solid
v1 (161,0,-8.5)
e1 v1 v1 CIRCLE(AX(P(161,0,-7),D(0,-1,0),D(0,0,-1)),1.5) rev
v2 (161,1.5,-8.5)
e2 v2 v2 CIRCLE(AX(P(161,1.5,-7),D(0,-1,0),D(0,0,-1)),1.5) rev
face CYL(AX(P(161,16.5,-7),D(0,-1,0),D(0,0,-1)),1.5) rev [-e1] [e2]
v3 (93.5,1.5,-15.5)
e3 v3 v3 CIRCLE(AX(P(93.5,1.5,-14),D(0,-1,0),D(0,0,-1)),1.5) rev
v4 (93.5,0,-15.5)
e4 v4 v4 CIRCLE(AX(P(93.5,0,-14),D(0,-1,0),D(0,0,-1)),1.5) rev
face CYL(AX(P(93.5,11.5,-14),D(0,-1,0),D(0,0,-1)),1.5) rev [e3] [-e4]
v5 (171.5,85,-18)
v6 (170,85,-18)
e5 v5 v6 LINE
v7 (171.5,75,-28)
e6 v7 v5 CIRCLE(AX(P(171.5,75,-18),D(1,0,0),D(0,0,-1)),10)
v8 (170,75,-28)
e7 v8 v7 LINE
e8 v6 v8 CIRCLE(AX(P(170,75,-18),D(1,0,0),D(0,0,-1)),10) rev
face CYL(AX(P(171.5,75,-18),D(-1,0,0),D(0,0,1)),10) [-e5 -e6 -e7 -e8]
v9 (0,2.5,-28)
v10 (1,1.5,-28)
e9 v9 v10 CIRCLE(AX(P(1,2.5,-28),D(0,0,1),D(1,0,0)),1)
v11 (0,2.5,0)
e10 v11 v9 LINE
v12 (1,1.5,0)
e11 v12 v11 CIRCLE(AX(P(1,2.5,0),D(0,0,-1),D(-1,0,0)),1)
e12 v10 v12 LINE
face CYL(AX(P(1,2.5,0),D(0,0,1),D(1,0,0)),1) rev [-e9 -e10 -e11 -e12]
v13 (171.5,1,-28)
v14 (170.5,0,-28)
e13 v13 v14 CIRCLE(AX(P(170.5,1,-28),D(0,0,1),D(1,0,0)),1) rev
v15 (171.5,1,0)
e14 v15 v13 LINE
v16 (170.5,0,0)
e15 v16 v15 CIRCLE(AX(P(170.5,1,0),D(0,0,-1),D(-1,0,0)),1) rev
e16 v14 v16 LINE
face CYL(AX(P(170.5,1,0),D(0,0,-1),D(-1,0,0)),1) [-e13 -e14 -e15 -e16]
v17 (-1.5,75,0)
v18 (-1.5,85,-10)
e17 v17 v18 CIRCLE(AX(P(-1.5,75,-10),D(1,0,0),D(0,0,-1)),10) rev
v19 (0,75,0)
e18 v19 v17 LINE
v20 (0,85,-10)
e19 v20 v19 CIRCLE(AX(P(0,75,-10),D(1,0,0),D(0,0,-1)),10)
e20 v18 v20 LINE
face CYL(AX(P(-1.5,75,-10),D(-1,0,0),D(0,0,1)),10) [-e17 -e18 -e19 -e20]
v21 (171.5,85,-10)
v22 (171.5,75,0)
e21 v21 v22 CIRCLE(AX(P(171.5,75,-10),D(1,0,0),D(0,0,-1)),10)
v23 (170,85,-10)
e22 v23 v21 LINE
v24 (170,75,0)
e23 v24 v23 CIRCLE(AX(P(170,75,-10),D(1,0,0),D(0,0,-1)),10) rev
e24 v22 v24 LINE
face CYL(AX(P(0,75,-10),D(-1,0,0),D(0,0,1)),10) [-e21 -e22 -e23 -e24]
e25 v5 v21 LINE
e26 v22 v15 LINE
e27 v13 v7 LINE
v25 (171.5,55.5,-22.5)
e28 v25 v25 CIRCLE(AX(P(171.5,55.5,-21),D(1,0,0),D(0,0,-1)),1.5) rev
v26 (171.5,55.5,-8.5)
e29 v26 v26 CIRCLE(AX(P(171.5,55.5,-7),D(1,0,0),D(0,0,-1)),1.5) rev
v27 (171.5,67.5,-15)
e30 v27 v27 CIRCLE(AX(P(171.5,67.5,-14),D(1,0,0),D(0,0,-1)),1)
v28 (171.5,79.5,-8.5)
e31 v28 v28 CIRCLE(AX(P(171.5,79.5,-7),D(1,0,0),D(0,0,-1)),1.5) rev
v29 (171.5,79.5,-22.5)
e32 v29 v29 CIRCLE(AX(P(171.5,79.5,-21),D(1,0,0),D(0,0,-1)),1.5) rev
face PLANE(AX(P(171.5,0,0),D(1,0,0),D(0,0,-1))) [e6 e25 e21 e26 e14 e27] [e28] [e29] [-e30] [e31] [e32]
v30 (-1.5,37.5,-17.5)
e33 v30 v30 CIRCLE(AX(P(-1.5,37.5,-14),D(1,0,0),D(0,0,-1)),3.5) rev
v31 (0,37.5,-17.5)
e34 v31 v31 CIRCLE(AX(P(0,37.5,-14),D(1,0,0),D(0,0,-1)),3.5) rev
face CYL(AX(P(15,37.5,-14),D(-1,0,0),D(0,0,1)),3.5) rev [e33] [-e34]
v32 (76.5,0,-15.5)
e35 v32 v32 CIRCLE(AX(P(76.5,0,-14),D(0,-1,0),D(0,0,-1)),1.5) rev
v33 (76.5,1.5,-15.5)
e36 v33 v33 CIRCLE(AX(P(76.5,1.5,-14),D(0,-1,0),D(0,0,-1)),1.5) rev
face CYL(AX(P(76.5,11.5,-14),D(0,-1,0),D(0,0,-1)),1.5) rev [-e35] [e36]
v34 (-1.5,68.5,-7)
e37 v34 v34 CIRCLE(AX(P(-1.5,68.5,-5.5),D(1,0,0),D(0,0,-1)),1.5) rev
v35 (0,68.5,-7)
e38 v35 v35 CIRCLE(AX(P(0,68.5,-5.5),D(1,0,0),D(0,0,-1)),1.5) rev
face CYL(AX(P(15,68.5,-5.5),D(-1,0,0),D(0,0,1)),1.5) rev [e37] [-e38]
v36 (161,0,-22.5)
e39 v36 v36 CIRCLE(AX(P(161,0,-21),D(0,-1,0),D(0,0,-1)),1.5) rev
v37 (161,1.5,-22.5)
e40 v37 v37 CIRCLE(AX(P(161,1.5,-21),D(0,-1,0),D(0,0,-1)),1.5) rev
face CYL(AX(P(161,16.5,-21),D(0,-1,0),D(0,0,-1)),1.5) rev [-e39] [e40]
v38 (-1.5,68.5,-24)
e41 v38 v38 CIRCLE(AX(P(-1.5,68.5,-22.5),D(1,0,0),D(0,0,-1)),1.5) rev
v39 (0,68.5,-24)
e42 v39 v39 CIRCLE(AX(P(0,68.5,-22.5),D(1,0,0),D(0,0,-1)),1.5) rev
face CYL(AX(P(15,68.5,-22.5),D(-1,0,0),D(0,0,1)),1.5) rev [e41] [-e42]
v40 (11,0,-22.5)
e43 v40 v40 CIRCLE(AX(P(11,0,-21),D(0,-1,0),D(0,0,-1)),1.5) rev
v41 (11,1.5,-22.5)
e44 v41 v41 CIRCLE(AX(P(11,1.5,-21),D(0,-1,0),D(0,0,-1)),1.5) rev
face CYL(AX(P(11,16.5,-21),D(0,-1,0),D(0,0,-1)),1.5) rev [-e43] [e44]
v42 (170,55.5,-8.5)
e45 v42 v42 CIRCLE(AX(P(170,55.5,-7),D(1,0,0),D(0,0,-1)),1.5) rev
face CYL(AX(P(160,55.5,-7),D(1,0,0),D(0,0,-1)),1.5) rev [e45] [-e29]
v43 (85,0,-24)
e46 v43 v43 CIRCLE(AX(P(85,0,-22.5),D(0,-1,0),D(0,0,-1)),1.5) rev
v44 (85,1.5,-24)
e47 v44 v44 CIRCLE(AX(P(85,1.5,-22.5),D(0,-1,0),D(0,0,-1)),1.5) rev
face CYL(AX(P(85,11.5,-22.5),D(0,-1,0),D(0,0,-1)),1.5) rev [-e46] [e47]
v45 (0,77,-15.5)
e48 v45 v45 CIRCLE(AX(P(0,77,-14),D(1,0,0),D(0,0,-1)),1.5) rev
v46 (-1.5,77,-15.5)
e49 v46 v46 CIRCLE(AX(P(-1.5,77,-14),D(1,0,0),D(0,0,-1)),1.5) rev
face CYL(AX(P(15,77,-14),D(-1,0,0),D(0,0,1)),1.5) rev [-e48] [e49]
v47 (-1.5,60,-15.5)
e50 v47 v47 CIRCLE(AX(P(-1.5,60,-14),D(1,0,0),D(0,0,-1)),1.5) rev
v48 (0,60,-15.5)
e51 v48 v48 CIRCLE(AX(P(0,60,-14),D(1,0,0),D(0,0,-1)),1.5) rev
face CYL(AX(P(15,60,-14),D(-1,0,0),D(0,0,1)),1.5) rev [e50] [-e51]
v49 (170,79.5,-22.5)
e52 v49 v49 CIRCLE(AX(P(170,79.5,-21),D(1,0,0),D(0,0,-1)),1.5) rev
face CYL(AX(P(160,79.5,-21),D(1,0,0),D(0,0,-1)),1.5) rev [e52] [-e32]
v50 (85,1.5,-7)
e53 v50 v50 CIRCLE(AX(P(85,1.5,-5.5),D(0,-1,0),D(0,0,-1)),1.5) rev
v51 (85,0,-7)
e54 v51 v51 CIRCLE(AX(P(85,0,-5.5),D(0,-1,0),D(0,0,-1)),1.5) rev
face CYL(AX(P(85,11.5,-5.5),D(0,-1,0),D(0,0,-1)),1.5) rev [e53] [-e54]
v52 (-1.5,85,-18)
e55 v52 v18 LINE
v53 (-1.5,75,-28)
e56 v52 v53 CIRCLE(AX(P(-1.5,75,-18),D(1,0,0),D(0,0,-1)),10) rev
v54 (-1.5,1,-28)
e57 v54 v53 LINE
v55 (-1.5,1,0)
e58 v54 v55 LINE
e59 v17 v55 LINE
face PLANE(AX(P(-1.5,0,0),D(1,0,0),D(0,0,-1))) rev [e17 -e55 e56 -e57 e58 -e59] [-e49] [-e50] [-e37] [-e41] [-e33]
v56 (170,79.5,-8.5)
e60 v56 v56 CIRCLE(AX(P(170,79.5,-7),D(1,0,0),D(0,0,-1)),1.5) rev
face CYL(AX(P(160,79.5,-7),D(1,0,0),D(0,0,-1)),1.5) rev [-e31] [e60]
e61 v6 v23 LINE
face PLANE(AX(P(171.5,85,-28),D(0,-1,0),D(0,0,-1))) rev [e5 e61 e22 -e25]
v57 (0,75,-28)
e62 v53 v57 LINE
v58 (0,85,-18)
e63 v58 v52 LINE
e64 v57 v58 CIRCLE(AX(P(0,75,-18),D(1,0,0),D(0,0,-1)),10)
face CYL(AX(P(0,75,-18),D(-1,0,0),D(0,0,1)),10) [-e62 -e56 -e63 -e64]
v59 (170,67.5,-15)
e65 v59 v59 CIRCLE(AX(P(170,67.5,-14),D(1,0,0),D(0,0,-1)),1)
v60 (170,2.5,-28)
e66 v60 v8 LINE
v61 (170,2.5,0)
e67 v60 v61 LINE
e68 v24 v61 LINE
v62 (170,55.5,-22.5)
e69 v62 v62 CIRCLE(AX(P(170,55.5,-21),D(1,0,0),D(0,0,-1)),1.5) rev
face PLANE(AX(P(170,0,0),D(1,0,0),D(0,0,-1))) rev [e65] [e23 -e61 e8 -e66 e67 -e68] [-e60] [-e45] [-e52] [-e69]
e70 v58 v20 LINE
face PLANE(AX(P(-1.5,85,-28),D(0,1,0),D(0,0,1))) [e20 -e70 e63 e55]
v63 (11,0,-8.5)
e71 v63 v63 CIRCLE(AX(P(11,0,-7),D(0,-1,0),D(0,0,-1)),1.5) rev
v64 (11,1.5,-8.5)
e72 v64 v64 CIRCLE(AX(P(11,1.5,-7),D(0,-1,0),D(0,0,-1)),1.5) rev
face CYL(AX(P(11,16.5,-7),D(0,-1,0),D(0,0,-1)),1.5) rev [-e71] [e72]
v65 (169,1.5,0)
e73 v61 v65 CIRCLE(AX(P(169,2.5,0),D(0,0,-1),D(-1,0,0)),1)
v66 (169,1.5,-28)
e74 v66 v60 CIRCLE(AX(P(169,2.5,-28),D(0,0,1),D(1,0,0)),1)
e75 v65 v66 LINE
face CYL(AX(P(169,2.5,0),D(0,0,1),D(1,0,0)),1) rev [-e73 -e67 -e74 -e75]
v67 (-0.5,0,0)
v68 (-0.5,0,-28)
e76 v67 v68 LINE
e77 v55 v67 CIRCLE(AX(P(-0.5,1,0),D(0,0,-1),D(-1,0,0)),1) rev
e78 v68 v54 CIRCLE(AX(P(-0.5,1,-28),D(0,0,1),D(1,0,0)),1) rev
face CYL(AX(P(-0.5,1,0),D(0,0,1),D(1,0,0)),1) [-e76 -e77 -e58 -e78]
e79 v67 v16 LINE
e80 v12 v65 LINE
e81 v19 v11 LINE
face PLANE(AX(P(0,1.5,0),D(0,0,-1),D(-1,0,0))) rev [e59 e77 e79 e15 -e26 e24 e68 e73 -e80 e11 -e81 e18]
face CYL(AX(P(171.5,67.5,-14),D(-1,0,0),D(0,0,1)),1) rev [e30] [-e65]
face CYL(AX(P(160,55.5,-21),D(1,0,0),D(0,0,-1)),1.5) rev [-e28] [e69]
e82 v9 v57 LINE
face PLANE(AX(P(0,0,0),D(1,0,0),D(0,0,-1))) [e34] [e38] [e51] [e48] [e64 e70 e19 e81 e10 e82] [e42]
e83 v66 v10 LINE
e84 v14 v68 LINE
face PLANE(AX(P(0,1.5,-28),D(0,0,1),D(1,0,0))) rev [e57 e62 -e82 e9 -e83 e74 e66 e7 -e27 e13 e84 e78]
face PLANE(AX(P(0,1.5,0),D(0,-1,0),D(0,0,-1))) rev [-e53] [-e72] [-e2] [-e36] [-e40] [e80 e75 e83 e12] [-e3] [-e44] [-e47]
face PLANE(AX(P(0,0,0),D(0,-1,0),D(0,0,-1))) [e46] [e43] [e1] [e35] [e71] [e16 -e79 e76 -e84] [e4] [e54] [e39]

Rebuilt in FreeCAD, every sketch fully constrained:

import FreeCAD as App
import Part
import Sketcher

V = App.Vector


def edges_at(feature, points):
    """Names of the edges that pass closest to the given points."""
    edges = feature.Shape.Edges
    near = lambda p: min(range(len(edges)), key=lambda i: edges[i].distToShape(Part.Vertex(*p))[0])
    return sorted({f"Edge{near(p) + 1}" for p in points})


def add_polygon(sketch, points):
    """Adds a closed chain of lines whose ends are joined by coincident constraints."""
    first, n = sketch.GeometryCount, len(points)
    for a, b in zip(points, points[1:] + points[:1]):
        sketch.addGeometry(Part.LineSegment(App.Vector(*a, 0), App.Vector(*b, 0)), False)
    for i in range(n):
        sketch.addConstraint(Sketcher.Constraint("Coincident", first + i, 2, first + (i + 1) % n, 1))

doc = App.newDocument("Part")
body = doc.addObject("PartDesign::Body", "Body")

sketch1 = body.newObject("Sketcher::SketchObject", "Sketch")
sketch1.AttachmentSupport = (doc.getObject("XZ_Plane"), [""])
sketch1.MapMode = "FlatFace"
add_polygon(sketch1, [(0, -28), (0, 0), (170, 0), (170, -28)])
sketch1.addConstraint([
    Sketcher.Constraint("Vertical", 0),
    Sketcher.Constraint("Horizontal", 1),
    Sketcher.Constraint("Vertical", 2),
    Sketcher.Constraint("Horizontal", 3),
    Sketcher.Constraint("Coincident", 0, 2, -1, 1),
    Sketcher.Constraint("DistanceX", 1, 1, 1, 2, 170.0),
    Sketcher.Constraint("DistanceY", 0, 1, 0, 2, 28.0),
])
pad1 = body.newObject("PartDesign::Pad", "Pad")
pad1.Profile = sketch1
pad1.Length = 1.5
pad1.Reversed = True

sketch2 = body.newObject("Sketcher::SketchObject", "Sketch001")
sketch2.AttachmentSupport = (doc.getObject("YZ_Plane"), [""])
sketch2.MapMode = "FlatFace"
add_polygon(sketch2, [(85, 0), (0, 0), (0, -28), (85, -28)])
sketch2.addConstraint([
    Sketcher.Constraint("Horizontal", 0),
    Sketcher.Constraint("Vertical", 1),
    Sketcher.Constraint("Horizontal", 2),
    Sketcher.Constraint("Vertical", 3),
    Sketcher.Constraint("Coincident", 0, 2, -1, 1),
    Sketcher.Constraint("DistanceX", 0, 2, 0, 1, 85.0),
    Sketcher.Constraint("DistanceY", 1, 2, 1, 1, 28.0),
])
pad2 = body.newObject("PartDesign::Pad", "Pad001")
pad2.Profile = sketch2
pad2.Length = 1.5
pad2.Reversed = True
doc.recompute()

fillet = body.newObject("PartDesign::Fillet", "Fillet")
fillet.Base = (pad2, edges_at(pad2, [(-0.75, 85, -28), (-0.75, 85, 0)]))
fillet.Radius = 10
doc.recompute()

fillet2 = body.newObject("PartDesign::Fillet", "Fillet001")
fillet2.Base = (fillet, edges_at(fillet, [(-1.5, 0, -14)]))
fillet2.Radius = 1
doc.recompute()

fillet3 = body.newObject("PartDesign::Fillet", "Fillet002")
fillet3.Base = (fillet2, edges_at(fillet2, [(0, 1.5, -14)]))
fillet3.Radius = 1

sketch3 = body.newObject("Sketcher::SketchObject", "Sketch002")
sketch3.AttachmentSupport = (doc.getObject("YZ_Plane"), [""])
sketch3.MapMode = "FlatFace"
sketch3.addGeometry([
    Part.Circle(V(77, -14, 0), V(0, 0, 1), 1.5),
    Part.Circle(V(60, -14, 0), V(0, 0, 1), 1.5),
    Part.Circle(V(68.5, -22.5, 0), V(0, 0, 1), 1.5),
    Part.Circle(V(68.5, -5.5, 0), V(0, 0, 1), 1.5),
], False)
sketch3.addConstraint([
    Sketcher.Constraint("Equal", 0, 1),
    Sketcher.Constraint("Equal", 1, 2),
    Sketcher.Constraint("Equal", 2, 3),
    Sketcher.Constraint("Horizontal", 0, 3, 1, 3),
    Sketcher.Constraint("Vertical", 2, 3, 3, 3),
    Sketcher.Constraint("Diameter", 0, 3.0),
    Sketcher.Constraint("DistanceX", -1, 1, 0, 3, 77.0),
    Sketcher.Constraint("DistanceY", 0, 3, -1, 1, 14.0),
    Sketcher.Constraint("DistanceX", -1, 1, 1, 3, 60.0),
    Sketcher.Constraint("DistanceY", 2, 3, 3, 3, 17.0),
    Sketcher.Constraint("DistanceX", -1, 1, 2, 3, 68.5),
    Sketcher.Constraint("DistanceY", 2, 3, -1, 1, 22.5),
])
pocket1 = body.newObject("PartDesign::Pocket", "Pocket")
pocket1.Profile = sketch3
pocket1.Type = "ThroughAll"
pocket1.Midplane = True

sketch4 = body.newObject("Sketcher::SketchObject", "Sketch003")
sketch4.AttachmentSupport = (doc.getObject("YZ_Plane"), [""])
sketch4.MapMode = "FlatFace"
sketch4.addGeometry(Part.Circle(V(37.5, -14, 0), V(0, 0, 1), 3.5), False)
sketch4.addConstraint([
    Sketcher.Constraint("Diameter", 0, 7.0),
    Sketcher.Constraint("DistanceY", 0, 3, -1, 1, 14.0),
    Sketcher.Constraint("DistanceX", -1, 1, 0, 3, 37.5),
])
pocket2 = body.newObject("PartDesign::Pocket", "Pocket001")
pocket2.Profile = sketch4
pocket2.Type = "ThroughAll"
pocket2.Midplane = True

sketch5 = body.newObject("Sketcher::SketchObject", "Sketch004")
sketch5.AttachmentSupport = (doc.getObject("XZ_Plane"), [""])
sketch5.MapMode = "FlatFace"
sketch5.AttachmentOffset = App.Placement(V(0, 0, -1.5), App.Rotation())
sketch5.addGeometry([
    Part.Circle(V(161, -7, 0), V(0, 0, 1), 1.5),
    Part.Circle(V(11, -21, 0), V(0, 0, 1), 1.5),
    Part.Circle(V(11, -7, 0), V(0, 0, 1), 1.5),
    Part.Circle(V(161, -21, 0), V(0, 0, 1), 1.5),
], False)
sketch5.addConstraint([
    Sketcher.Constraint("Equal", 0, 1),
    Sketcher.Constraint("Equal", 1, 2),
    Sketcher.Constraint("Equal", 2, 3),
    Sketcher.Constraint("Horizontal", 0, 3, 2, 3),
    Sketcher.Constraint("Horizontal", 1, 3, 3, 3),
    Sketcher.Constraint("Vertical", 1, 3, 2, 3),
    Sketcher.Constraint("Vertical", 0, 3, 3, 3),
    Sketcher.Constraint("Diameter", 0, 3.0),
    Sketcher.Constraint("DistanceX", -1, 1, 0, 3, 161.0),
    Sketcher.Constraint("DistanceY", 0, 3, -1, 1, 7.0),
    Sketcher.Constraint("DistanceX", -1, 1, 1, 3, 11.0),
    Sketcher.Constraint("DistanceY", 1, 3, -1, 1, 21.0),
])
pocket3 = body.newObject("PartDesign::Pocket", "Pocket002")
pocket3.Profile = sketch5
pocket3.Type = "ThroughAll"
pocket3.Midplane = True

sketch6 = body.newObject("Sketcher::SketchObject", "Sketch005")
sketch6.AttachmentSupport = (doc.getObject("YZ_Plane"), [""])
sketch6.MapMode = "FlatFace"
sketch6.AttachmentOffset = App.Placement(V(0, 0, 170), App.Rotation())
add_polygon(sketch6, [(85, 0), (0, 0), (0, -28), (85, -28)])
sketch6.addGeometry(Part.Circle(V(67.5, -14, 0), V(0, 0, 1), 1), False)
sketch6.addConstraint([
    Sketcher.Constraint("Horizontal", 0),
    Sketcher.Constraint("Vertical", 1),
    Sketcher.Constraint("Horizontal", 2),
    Sketcher.Constraint("Vertical", 3),
    Sketcher.Constraint("Coincident", 0, 2, -1, 1),
    Sketcher.Constraint("Diameter", 4, 2.0),
    Sketcher.Constraint("DistanceX", 0, 2, 0, 1, 85.0),
    Sketcher.Constraint("DistanceY", 1, 2, 1, 1, 28.0),
    Sketcher.Constraint("DistanceY", 4, 3, -1, 1, 14.0),
    Sketcher.Constraint("DistanceX", -1, 1, 4, 3, 67.5),
])
pad3 = body.newObject("PartDesign::Pad", "Pad002")
pad3.Profile = sketch6
pad3.Length = 1.5
doc.recompute()

fillet4 = body.newObject("PartDesign::Fillet", "Fillet003")
fillet4.Base = (pad3, edges_at(pad3, [(170, 1.5, -14)]))
fillet4.Radius = 1
doc.recompute()

fillet5 = body.newObject("PartDesign::Fillet", "Fillet004")
fillet5.Base = (fillet4, edges_at(fillet4, [(171.5, 0, -14)]))
fillet5.Radius = 1
doc.recompute()

fillet6 = body.newObject("PartDesign::Fillet", "Fillet005")
fillet6.Base = (fillet5, edges_at(fillet5, [(170.75, 85, 0)]))
fillet6.Radius = 10
doc.recompute()

fillet7 = body.newObject("PartDesign::Fillet", "Fillet006")
fillet7.Base = (fillet6, edges_at(fillet6, [(170.75, 85, -28)]))
fillet7.Radius = 10

sketch7 = body.newObject("Sketcher::SketchObject", "Sketch006")
sketch7.AttachmentSupport = (doc.getObject("YZ_Plane"), [""])
sketch7.MapMode = "FlatFace"
sketch7.AttachmentOffset = App.Placement(V(0, 0, 170), App.Rotation())
sketch7.addGeometry([
    Part.Circle(V(79.5, -21, 0), V(0, 0, 1), 1.5),
    Part.Circle(V(79.5, -7, 0), V(0, 0, 1), 1.5),
    Part.Circle(V(55.5, -7, 0), V(0, 0, 1), 1.5),
    Part.Circle(V(55.5, -21, 0), V(0, 0, 1), 1.5),
], False)
sketch7.addConstraint([
    Sketcher.Constraint("Equal", 0, 1),
    Sketcher.Constraint("Equal", 1, 2),
    Sketcher.Constraint("Equal", 2, 3),
    Sketcher.Constraint("Horizontal", 1, 3, 2, 3),
    Sketcher.Constraint("Horizontal", 0, 3, 3, 3),
    Sketcher.Constraint("Vertical", 0, 3, 1, 3),
    Sketcher.Constraint("Vertical", 2, 3, 3, 3),
    Sketcher.Constraint("Diameter", 0, 3.0),
    Sketcher.Constraint("DistanceY", 0, 3, -1, 1, 21.0),
    Sketcher.Constraint("DistanceY", 1, 3, -1, 1, 7.0),
    Sketcher.Constraint("DistanceX", 2, 3, 1, 3, 24.0),
    Sketcher.Constraint("DistanceX", -1, 1, 0, 3, 79.5),
])
pocket4 = body.newObject("PartDesign::Pocket", "Pocket003")
pocket4.Profile = sketch7
pocket4.Type = "TwoLengths"
pocket4.Length = 10
pocket4.Length2 = 10

sketch8 = body.newObject("Sketcher::SketchObject", "Sketch007")
sketch8.AttachmentSupport = (doc.getObject("XZ_Plane"), [""])
sketch8.MapMode = "FlatFace"
sketch8.AttachmentOffset = App.Placement(V(0, 0, -1.5), App.Rotation())
sketch8.addGeometry([
    Part.Circle(V(85, -22.5, 0), V(0, 0, 1), 1.5),
    Part.Circle(V(85, -5.5, 0), V(0, 0, 1), 1.5),
    Part.Circle(V(93.5, -14, 0), V(0, 0, 1), 1.5),
    Part.Circle(V(76.5, -14, 0), V(0, 0, 1), 1.5),
], False)
sketch8.addConstraint([
    Sketcher.Constraint("Equal", 0, 1),
    Sketcher.Constraint("Equal", 1, 2),
    Sketcher.Constraint("Equal", 2, 3),
    Sketcher.Constraint("Horizontal", 2, 3, 3, 3),
    Sketcher.Constraint("Vertical", 0, 3, 1, 3),
    Sketcher.Constraint("Diameter", 0, 3.0),
    Sketcher.Constraint("DistanceX", -1, 1, 0, 3, 85.0),
    Sketcher.Constraint("DistanceY", 2, 3, -1, 1, 14.0),
    Sketcher.Constraint("DistanceY", 0, 3, 1, 3, 17.0),
    Sketcher.Constraint("DistanceX", 3, 3, 2, 3, 17.0),
    Sketcher.Constraint("DistanceY", 0, 3, -1, 1, 22.5),
    Sketcher.Constraint("DistanceX", -1, 1, 2, 3, 93.5),
])
pocket5 = body.newObject("PartDesign::Pocket", "Pocket004")
pocket5.Profile = sketch8
pocket5.Type = "ThroughAll"
pocket5.Midplane = True

doc.recompute()
